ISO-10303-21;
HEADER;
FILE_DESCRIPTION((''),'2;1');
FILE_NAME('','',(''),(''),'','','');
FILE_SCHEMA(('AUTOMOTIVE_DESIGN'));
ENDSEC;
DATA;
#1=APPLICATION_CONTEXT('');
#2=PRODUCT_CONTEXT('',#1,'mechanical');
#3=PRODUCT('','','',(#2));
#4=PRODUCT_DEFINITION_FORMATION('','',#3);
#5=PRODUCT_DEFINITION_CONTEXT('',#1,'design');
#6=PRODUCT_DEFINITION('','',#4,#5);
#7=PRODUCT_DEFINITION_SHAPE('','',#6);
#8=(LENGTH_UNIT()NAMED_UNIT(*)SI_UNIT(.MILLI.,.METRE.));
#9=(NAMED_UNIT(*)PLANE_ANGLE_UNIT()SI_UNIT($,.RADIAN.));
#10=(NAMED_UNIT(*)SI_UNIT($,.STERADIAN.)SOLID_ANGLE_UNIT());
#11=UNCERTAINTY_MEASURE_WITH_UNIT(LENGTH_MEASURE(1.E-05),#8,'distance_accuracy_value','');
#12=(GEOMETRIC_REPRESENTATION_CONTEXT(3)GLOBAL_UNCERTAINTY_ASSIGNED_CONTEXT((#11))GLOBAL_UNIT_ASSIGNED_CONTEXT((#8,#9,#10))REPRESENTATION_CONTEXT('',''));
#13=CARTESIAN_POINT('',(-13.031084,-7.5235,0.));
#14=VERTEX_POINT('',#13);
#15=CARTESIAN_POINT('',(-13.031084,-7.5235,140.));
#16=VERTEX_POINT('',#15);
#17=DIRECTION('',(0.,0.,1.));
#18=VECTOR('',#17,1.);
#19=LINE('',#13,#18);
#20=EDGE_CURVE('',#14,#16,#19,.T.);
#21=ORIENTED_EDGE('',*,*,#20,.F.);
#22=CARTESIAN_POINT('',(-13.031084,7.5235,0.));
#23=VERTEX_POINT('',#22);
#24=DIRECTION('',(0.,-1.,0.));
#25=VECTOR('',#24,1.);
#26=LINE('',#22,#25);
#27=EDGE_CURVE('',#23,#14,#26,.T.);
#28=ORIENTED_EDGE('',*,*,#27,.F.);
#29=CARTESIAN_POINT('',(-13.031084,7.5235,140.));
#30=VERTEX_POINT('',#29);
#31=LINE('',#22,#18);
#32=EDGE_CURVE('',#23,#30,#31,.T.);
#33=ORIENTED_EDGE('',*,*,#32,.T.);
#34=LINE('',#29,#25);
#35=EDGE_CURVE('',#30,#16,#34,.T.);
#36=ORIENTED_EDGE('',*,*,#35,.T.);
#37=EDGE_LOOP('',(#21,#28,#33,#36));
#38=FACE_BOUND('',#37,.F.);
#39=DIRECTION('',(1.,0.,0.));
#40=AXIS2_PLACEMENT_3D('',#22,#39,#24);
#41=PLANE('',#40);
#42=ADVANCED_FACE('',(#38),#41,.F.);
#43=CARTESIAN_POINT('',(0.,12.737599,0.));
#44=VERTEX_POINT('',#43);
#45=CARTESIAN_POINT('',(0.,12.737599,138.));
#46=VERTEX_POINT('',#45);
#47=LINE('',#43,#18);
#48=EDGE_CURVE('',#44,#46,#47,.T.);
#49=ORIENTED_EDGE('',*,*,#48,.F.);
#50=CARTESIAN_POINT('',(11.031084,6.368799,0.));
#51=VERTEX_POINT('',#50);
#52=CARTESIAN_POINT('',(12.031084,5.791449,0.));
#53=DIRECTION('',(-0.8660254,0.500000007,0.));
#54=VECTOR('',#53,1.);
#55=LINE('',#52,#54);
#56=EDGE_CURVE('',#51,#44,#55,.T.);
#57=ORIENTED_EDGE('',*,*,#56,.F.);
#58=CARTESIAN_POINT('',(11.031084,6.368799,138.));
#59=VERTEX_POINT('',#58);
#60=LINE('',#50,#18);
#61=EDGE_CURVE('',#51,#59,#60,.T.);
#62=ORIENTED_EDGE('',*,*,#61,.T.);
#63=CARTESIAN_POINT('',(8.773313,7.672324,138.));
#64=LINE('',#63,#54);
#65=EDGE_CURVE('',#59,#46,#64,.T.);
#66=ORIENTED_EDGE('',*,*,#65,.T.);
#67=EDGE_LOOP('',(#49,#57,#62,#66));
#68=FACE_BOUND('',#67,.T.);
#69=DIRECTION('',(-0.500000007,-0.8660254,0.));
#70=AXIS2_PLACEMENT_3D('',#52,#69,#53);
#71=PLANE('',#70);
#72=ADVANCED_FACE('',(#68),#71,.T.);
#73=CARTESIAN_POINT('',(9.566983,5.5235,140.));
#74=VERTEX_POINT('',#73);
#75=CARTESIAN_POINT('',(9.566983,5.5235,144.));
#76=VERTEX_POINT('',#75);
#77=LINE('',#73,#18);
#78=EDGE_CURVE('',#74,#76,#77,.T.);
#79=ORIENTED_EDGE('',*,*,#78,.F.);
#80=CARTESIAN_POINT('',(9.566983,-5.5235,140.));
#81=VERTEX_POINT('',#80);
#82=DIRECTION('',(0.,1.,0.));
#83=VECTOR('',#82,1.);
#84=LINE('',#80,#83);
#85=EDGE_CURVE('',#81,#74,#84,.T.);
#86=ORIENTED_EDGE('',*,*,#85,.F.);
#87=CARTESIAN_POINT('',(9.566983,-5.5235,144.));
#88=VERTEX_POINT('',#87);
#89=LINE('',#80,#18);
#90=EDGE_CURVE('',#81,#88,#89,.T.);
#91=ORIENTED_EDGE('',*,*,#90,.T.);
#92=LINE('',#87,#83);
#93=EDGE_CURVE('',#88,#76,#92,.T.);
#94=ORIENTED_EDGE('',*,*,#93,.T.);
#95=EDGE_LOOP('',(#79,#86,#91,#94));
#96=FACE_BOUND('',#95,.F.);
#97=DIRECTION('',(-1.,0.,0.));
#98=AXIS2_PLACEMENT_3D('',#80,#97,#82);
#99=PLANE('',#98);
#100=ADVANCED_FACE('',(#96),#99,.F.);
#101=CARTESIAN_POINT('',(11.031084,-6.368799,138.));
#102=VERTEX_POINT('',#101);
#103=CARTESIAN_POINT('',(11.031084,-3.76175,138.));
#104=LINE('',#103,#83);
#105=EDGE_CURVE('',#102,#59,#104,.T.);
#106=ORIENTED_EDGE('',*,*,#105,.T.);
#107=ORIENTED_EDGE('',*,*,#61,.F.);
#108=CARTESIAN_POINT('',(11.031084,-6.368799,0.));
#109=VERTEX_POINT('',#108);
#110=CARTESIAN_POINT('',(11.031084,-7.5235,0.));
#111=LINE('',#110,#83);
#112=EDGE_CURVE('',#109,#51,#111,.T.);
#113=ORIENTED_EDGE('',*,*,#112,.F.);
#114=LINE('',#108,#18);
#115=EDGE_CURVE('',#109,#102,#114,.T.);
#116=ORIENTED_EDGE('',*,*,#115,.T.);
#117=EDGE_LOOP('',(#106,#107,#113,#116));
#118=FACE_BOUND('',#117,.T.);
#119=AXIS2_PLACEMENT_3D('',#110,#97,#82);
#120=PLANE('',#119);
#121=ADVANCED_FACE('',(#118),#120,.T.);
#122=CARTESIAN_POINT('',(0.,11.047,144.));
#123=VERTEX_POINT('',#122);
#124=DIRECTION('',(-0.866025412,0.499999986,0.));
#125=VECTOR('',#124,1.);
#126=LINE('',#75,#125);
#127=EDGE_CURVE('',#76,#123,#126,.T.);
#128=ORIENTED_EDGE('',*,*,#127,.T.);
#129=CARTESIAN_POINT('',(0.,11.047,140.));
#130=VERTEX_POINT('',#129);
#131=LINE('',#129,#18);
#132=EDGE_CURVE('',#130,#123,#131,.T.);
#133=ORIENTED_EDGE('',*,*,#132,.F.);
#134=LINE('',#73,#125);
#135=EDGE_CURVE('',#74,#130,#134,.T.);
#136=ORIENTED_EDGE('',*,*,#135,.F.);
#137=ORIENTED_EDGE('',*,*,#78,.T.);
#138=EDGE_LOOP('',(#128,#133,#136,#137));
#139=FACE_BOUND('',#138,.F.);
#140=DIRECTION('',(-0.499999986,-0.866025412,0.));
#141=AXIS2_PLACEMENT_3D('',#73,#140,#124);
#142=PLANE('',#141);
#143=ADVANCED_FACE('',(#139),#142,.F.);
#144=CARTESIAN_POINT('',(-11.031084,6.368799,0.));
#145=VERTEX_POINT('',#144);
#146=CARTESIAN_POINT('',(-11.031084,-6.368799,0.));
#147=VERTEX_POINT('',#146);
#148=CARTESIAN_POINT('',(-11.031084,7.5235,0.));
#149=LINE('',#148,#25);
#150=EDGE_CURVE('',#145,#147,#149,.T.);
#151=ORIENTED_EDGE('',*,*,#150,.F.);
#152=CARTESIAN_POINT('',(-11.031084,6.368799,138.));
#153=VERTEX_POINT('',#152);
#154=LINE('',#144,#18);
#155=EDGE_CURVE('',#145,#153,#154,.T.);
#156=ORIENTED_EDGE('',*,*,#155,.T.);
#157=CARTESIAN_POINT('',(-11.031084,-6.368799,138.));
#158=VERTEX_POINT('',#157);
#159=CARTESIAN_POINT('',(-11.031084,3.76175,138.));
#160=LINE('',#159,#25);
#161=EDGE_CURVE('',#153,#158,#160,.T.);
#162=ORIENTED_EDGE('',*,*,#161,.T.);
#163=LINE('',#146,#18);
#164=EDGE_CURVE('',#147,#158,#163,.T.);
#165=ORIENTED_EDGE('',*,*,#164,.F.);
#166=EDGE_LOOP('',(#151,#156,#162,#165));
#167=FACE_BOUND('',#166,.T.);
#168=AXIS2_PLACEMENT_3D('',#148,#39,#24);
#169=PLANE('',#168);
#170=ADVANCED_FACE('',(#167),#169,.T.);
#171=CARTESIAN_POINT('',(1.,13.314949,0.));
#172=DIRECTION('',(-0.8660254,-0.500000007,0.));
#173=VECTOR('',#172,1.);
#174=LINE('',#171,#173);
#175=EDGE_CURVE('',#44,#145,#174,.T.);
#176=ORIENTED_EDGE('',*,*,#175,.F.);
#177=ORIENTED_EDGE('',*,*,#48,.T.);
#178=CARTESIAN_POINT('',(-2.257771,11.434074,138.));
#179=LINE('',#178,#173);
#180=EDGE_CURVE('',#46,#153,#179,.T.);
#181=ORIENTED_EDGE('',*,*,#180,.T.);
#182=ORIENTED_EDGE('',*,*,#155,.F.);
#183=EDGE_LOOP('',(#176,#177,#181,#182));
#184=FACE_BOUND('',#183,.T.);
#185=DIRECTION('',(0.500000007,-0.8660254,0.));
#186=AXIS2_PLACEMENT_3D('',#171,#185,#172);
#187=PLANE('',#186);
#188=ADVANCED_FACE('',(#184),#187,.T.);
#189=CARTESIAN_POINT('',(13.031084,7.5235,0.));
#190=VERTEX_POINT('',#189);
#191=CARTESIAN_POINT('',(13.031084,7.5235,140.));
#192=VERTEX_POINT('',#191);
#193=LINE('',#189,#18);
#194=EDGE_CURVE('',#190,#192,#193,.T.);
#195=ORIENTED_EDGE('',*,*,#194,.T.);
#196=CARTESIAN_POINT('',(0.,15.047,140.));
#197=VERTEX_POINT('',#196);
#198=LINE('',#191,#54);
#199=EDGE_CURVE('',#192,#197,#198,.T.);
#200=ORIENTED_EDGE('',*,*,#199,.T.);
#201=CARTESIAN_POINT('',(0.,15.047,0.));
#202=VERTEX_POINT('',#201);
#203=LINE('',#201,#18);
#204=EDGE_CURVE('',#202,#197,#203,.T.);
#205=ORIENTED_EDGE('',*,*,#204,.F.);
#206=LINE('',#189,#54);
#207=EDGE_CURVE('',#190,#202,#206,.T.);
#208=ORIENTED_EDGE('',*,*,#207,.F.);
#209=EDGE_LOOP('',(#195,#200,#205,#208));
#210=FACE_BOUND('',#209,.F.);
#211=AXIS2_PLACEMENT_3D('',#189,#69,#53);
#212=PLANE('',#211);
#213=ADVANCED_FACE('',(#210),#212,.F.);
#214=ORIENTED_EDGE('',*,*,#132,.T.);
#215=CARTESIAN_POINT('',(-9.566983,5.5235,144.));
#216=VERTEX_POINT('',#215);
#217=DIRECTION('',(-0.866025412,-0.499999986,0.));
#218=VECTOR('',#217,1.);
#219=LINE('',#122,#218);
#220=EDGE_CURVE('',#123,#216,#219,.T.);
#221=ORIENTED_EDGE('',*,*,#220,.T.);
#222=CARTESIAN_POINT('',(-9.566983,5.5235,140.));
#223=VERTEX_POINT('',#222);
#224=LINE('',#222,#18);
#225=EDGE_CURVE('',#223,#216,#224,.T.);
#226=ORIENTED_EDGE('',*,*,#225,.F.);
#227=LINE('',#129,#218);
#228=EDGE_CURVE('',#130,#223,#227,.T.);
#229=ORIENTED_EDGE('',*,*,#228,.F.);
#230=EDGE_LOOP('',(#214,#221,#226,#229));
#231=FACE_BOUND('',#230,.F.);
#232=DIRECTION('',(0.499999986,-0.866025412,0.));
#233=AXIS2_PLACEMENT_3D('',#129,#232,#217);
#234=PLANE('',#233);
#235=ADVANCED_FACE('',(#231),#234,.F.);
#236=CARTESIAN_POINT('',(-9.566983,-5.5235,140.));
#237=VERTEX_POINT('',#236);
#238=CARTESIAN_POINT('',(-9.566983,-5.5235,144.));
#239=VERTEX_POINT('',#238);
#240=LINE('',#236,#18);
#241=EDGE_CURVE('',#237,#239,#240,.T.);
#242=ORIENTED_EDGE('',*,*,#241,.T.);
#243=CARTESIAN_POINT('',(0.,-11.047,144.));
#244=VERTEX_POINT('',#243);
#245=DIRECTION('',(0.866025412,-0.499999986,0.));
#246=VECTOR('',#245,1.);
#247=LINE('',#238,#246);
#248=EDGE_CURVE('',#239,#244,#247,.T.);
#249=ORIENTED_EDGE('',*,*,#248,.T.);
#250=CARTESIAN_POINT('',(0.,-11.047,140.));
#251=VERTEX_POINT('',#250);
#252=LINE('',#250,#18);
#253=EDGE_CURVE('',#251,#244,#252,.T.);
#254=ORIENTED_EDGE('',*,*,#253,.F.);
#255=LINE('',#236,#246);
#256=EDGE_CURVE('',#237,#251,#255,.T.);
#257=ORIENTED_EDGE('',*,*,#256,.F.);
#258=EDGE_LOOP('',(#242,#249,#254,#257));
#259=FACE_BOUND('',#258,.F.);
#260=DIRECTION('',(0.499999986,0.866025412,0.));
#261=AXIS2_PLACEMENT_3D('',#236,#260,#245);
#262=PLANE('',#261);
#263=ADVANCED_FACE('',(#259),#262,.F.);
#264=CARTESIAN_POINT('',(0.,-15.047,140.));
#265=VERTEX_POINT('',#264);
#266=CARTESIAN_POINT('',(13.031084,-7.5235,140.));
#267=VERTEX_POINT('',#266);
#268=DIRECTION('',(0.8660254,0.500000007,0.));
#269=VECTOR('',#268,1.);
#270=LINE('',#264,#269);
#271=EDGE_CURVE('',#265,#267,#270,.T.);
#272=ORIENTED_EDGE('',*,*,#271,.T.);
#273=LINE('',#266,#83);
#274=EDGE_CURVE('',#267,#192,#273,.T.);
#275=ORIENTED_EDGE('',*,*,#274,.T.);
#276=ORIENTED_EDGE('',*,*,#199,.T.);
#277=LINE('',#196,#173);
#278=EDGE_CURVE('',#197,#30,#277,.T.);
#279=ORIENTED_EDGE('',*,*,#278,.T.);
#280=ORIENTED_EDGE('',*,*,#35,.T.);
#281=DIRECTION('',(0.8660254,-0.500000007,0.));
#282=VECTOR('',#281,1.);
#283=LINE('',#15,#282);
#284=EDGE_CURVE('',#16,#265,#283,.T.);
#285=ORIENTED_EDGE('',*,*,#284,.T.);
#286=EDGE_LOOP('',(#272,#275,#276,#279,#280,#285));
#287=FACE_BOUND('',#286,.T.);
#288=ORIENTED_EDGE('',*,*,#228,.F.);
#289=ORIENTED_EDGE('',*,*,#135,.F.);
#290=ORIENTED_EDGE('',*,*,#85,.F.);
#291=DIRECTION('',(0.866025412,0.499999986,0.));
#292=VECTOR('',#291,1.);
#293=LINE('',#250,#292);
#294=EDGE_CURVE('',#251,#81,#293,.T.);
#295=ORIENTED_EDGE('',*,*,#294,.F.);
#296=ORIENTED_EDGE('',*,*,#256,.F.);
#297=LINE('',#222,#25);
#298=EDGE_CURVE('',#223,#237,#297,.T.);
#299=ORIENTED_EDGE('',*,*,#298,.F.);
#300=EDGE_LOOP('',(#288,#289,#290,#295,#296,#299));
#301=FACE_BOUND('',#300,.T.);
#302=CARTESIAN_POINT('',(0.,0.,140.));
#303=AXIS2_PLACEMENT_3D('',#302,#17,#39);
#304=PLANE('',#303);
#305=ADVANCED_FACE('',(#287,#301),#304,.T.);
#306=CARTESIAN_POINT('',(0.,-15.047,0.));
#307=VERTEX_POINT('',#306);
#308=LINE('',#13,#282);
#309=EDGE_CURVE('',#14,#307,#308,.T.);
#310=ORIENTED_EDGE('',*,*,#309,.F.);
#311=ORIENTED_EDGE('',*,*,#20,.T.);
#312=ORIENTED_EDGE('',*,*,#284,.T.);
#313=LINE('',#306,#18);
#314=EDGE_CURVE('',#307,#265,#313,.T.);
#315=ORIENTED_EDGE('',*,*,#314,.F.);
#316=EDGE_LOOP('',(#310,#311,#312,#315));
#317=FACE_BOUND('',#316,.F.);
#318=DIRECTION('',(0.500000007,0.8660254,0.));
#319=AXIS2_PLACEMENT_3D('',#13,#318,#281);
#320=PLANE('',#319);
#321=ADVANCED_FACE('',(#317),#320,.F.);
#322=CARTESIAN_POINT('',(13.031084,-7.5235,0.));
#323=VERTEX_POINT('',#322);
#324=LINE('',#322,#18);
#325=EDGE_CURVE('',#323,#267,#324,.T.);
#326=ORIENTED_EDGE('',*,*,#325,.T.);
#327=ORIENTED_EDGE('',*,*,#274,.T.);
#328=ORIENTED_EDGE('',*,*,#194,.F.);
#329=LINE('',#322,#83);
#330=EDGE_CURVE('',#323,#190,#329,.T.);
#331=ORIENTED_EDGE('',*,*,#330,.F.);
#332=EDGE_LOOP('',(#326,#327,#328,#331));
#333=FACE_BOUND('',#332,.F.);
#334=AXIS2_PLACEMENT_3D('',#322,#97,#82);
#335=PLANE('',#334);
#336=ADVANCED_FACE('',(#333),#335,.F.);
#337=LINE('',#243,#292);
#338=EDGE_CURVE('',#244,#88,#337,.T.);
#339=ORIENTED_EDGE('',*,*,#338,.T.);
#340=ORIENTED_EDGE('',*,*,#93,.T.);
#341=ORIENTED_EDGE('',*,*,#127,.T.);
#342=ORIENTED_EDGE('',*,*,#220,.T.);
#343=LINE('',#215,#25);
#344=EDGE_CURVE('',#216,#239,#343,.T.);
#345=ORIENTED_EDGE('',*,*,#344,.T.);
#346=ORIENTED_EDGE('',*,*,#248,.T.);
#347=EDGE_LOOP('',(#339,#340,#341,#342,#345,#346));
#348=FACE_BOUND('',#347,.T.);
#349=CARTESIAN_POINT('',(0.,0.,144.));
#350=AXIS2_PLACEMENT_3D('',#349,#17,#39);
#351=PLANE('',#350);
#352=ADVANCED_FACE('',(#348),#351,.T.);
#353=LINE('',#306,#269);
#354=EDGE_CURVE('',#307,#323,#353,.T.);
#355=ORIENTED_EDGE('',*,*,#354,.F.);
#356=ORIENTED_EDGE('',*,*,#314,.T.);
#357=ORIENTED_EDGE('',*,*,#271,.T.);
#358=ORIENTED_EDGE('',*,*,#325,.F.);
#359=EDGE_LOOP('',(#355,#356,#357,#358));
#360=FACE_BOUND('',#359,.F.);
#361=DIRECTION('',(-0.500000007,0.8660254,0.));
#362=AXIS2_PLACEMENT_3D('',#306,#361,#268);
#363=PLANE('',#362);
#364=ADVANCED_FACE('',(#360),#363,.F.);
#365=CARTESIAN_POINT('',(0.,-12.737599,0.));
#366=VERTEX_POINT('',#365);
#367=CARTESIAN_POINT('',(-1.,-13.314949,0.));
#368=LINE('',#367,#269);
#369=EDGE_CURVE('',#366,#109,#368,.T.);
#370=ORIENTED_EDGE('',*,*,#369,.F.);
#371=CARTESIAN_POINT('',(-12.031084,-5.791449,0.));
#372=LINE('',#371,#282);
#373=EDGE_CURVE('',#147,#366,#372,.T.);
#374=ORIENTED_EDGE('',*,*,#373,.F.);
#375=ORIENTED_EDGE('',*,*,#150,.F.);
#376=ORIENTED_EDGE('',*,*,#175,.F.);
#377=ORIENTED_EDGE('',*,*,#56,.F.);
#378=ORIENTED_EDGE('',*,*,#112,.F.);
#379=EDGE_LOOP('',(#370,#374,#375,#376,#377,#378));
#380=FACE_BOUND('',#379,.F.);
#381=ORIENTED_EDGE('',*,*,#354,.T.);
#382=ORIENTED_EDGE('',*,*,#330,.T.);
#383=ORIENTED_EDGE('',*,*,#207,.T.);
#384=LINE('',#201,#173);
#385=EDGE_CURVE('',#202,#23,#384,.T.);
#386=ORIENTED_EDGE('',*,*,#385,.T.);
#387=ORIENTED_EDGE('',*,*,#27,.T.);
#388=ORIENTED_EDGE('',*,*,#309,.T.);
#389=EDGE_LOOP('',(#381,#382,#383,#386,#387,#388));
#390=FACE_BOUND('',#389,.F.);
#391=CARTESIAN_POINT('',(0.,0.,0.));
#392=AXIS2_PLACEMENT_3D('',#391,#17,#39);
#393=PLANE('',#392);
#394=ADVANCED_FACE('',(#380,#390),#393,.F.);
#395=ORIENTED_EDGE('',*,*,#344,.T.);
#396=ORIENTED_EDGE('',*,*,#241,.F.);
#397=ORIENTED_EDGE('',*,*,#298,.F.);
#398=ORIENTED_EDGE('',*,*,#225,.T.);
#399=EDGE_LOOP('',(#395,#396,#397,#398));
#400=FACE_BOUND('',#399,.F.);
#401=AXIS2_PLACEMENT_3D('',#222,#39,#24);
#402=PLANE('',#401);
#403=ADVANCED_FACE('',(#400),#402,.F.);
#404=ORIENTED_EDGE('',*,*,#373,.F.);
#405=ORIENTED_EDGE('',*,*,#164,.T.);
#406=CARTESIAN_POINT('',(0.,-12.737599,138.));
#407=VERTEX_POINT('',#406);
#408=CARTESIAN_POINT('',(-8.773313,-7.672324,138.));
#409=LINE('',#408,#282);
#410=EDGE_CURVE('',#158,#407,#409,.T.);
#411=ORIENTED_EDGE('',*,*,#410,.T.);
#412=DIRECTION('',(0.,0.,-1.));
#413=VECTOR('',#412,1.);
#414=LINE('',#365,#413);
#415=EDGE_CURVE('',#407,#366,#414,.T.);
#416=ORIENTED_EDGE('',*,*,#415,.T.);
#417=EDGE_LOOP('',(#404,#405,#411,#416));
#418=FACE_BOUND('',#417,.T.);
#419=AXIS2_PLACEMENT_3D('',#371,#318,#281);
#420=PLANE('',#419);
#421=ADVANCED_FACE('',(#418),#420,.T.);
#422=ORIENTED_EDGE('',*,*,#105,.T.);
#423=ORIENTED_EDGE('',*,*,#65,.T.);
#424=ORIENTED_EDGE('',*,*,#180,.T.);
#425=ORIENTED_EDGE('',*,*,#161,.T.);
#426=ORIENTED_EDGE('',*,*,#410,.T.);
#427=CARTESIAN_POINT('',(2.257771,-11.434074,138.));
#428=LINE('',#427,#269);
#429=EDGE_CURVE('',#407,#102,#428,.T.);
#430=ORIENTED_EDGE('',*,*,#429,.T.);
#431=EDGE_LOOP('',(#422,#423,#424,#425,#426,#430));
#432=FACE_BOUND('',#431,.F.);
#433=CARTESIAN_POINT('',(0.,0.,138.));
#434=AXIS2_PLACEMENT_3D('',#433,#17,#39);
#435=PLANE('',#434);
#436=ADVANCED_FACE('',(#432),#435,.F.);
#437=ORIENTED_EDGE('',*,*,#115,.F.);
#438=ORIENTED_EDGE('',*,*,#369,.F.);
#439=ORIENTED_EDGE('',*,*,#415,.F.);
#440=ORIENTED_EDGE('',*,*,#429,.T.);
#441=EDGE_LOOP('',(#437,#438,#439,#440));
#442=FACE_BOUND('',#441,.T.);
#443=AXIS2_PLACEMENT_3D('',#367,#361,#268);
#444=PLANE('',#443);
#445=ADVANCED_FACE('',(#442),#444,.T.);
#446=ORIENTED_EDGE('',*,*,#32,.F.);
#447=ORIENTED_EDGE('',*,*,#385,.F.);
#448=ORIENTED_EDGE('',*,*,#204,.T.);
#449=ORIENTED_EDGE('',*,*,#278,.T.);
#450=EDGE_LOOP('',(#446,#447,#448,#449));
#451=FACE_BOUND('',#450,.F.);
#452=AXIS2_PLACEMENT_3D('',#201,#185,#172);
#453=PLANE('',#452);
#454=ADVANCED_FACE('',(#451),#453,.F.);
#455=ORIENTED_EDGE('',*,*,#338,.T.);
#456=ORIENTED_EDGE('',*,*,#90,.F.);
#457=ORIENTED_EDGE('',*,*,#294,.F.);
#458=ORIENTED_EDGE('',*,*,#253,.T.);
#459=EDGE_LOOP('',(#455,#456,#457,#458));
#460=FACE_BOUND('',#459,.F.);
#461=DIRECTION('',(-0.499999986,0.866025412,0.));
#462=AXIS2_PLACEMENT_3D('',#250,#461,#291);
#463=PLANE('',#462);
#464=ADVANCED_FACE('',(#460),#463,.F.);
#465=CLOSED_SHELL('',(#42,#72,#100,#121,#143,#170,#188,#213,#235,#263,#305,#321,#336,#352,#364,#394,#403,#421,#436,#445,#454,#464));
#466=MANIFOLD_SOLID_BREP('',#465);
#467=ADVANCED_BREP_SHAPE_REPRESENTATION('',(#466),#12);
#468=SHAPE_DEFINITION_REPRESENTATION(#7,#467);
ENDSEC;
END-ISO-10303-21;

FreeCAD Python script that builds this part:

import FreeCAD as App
import Part
import Sketcher
Q = App.Units.Quantity


def faces_at(feature, points):
    """Names of the faces that lie closest to the given points."""
    faces = feature.Shape.Faces
    near = lambda p: min(range(len(faces)), key=lambda i: faces[i].distToShape(Part.Vertex(*p))[0])
    return sorted({f"Face{near(p) + 1}" for p in points})

doc = App.newDocument("Part")
body = doc.addObject("PartDesign::Body", "Body")

# Sketch on XY plane
sketch1 = body.newObject("Sketcher::SketchObject", "Sketch")
sketch1.AttachmentSupport = (doc.getObject("XY_Plane"), [""])
sketch1.MapMode = "FlatFace"
sketch1.addGeometry([
    Part.LineSegment(App.Vector(0, -15, 0), App.Vector(13, -8, 0)),  # 0
    Part.LineSegment(App.Vector(13, -8, 0), App.Vector(13, 8, 0)),  # 1
    Part.LineSegment(App.Vector(13, 8, 0), App.Vector(0, 15, 0)),  # 2
    Part.LineSegment(App.Vector(0, 15, 0), App.Vector(-13, 8, 0)),  # 3
    Part.LineSegment(App.Vector(-13, 8, 0), App.Vector(-13, -8, 0)),  # 4
    Part.LineSegment(App.Vector(-13, -8, 0), App.Vector(0, -15, 0)),  # 5
], False)
sketch1.addConstraint([
    Sketcher.Constraint("Coincident", 0, 2, 1, 1),
    Sketcher.Constraint("Coincident", 1, 2, 2, 1),
    Sketcher.Constraint("Coincident", 2, 2, 3, 1),
    Sketcher.Constraint("Coincident", 3, 2, 4, 1),
    Sketcher.Constraint("Coincident", 4, 2, 5, 1),
    Sketcher.Constraint("Coincident", 5, 2, 0, 1),
    Sketcher.Constraint("Vertical", 1),
    Sketcher.Constraint("Vertical", 4),
    Sketcher.Constraint("Symmetric", 0, 2, 3, 2, -1, 1),
    Sketcher.Constraint("Symmetric", 2, 2, 5, 2, -1, 1),
    Sketcher.Constraint("PointOnObject", 2, 2, -2),
    Sketcher.Constraint("Parallel", 2, 5),
    Sketcher.Constraint("Horizontal", 1, 2, 3, 2),
    Sketcher.Constraint("Angle", 0, Q("30 deg")),
    Sketcher.Constraint("DistanceY", 1, 1, 1, 2, Q("15.047 mm")),
    Sketcher.Constraint("Distance", 0, Q("15.047 mm")),
])
pad1 = body.newObject("PartDesign::Pad", "Pad")
pad1.Profile = sketch1
pad1.Length = 140
doc.recompute()

thickness = body.newObject("PartDesign::Thickness", "Thickness")
thickness.Base = (pad1, faces_at(pad1, [(0, 0, 0)]))
thickness.Value = 2
thickness.Reversed = True
thickness.Join = "Arc"

# Sketch on XY plane
sketch2 = body.newObject("Sketcher::SketchObject", "Sketch001")
sketch2.AttachmentSupport = (doc.getObject("XY_Plane"), [""])
sketch2.MapMode = "FlatFace"
sketch2.AttachmentOffset = App.Placement(App.Vector(0, 0, 140), App.Rotation())
sketch2.addGeometry([
    Part.LineSegment(App.Vector(0, -11, 0), App.Vector(10, -6, 0)),  # 0
    Part.LineSegment(App.Vector(10, -6, 0), App.Vector(10, 6, 0)),  # 1
    Part.LineSegment(App.Vector(10, 6, 0), App.Vector(0, 11, 0)),  # 2
    Part.LineSegment(App.Vector(0, 11, 0), App.Vector(-10, 6, 0)),  # 3
    Part.LineSegment(App.Vector(-10, 6, 0), App.Vector(-10, -6, 0)),  # 4
    Part.LineSegment(App.Vector(-10, -6, 0), App.Vector(0, -11, 0)),  # 5
], False)
sketch2.addConstraint([
    Sketcher.Constraint("Coincident", 0, 2, 1, 1),
    Sketcher.Constraint("Coincident", 1, 2, 2, 1),
    Sketcher.Constraint("Coincident", 2, 2, 3, 1),
    Sketcher.Constraint("Coincident", 3, 2, 4, 1),
    Sketcher.Constraint("Coincident", 4, 2, 5, 1),
    Sketcher.Constraint("Coincident", 5, 2, 0, 1),
    Sketcher.Constraint("Vertical", 1),
    Sketcher.Constraint("Vertical", 4),
    Sketcher.Constraint("Symmetric", 0, 2, 3, 2, -1, 1),
    Sketcher.Constraint("Symmetric", 2, 2, 5, 2, -1, 1),
    Sketcher.Constraint("PointOnObject", 2, 2, -2),
    Sketcher.Constraint("Parallel", 2, 5),
    Sketcher.Constraint("Horizontal", 1, 2, 3, 2),
    Sketcher.Constraint("Angle", 0, Q("29.999999 deg")),
    Sketcher.Constraint("DistanceY", 1, 1, 1, 2, Q("11.047 mm")),
    Sketcher.Constraint("Distance", 0, Q("11.047 mm")),
])
pad2 = body.newObject("PartDesign::Pad", "Pad001")
pad2.Profile = sketch2
pad2.Length = 4

doc.recompute()
